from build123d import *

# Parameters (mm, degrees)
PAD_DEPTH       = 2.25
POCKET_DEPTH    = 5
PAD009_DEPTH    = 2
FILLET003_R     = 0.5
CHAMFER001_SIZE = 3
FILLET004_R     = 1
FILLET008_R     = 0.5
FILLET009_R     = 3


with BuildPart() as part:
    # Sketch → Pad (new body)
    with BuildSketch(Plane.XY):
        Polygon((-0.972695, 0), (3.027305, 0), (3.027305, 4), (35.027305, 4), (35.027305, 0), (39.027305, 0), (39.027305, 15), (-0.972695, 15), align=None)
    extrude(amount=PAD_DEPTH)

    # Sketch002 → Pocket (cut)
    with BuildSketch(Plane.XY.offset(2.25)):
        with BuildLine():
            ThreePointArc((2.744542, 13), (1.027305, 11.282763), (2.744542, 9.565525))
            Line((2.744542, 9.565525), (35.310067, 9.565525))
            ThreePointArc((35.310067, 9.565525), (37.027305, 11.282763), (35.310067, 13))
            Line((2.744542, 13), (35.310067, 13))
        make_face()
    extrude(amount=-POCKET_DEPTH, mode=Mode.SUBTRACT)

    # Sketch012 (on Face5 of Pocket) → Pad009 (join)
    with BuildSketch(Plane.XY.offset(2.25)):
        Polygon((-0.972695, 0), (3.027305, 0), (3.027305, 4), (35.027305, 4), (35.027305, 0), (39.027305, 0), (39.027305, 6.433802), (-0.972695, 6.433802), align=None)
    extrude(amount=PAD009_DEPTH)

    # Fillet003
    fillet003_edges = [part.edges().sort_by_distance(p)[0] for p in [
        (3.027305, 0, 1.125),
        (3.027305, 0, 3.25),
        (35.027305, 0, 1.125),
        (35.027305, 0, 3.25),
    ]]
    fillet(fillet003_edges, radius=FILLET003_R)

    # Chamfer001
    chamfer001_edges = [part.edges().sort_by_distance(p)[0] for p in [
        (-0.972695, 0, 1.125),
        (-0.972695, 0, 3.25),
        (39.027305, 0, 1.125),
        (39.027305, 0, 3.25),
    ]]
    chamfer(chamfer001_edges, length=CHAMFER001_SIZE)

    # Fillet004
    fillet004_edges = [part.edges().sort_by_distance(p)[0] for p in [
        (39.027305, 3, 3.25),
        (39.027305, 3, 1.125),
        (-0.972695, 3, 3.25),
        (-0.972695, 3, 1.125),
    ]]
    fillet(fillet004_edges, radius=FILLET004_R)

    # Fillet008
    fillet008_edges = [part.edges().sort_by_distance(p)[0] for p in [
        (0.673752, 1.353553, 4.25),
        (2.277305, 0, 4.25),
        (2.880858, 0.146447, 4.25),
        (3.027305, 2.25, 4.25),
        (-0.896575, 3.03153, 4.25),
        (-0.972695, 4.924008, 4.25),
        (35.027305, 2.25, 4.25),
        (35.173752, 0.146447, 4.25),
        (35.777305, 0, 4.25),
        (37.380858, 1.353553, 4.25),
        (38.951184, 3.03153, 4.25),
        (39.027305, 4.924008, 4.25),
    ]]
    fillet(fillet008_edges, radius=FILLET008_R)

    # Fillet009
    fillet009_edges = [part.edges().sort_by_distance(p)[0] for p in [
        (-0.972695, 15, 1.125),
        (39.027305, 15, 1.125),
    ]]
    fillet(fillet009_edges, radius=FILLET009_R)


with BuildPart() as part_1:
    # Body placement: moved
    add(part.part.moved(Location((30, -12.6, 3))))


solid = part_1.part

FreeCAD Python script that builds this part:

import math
import FreeCAD as App
import Part
import Sketcher
Q = App.Units.Quantity


def edges_at(feature, points):
    """Names of the edges that pass closest to the given points."""
    edges = feature.Shape.Edges
    near = lambda p: min(range(len(edges)), key=lambda i: edges[i].distToShape(Part.Vertex(*p))[0])
    return sorted({f"Edge{near(p) + 1}" for p in points})

doc = App.newDocument("Part")
params = doc.addObject("Spreadsheet::Sheet", "Params")
for row, (alias, value) in enumerate([
    ("sketch1_width", "4 mm"),
    ("sketch1_width2", "32 mm"),
    ("sketch1_height", "15 mm"),
    ("pad1_length", "2.25 mm"),
    ("pocket1_length", "5 mm"),
    ("sketch3_width", "4 mm"),
    ("sketch3_width2", "32 mm"),
    ("pad2_length", "2 mm"),
    ("fillet_radius", "0.5 mm"),
    ("chamfer_size", "3 mm"),
    ("fillet2_radius", "1 mm"),
    ("fillet3_radius", "0.5 mm"),
    ("fillet4_radius", "3 mm"),
], start=1):
    params.set(f"A{row}", alias)
    params.set(f"B{row}", "=" + value)
    params.setAlias(f"B{row}", alias)

body = doc.addObject("PartDesign::Body", "Body")

# Sketch on XY plane
sketch1 = body.newObject("Sketcher::SketchObject", "Sketch")
sketch1.AttachmentSupport = (doc.getObject("XY_Plane"), [""])
sketch1.MapMode = "FlatFace"
sketch1.addGeometry([
    Part.LineSegment(App.Vector(-1, 0, 0), App.Vector(3, 0, 0)),  # 0
    Part.LineSegment(App.Vector(3, 0, 0), App.Vector(3, 4, 0)),  # 1
    Part.LineSegment(App.Vector(3, 4, 0), App.Vector(35, 4, 0)),  # 2
    Part.LineSegment(App.Vector(35, 4, 0), App.Vector(35, 0, 0)),  # 3
    Part.LineSegment(App.Vector(35, 0, 0), App.Vector(39, 0, 0)),  # 4
    Part.LineSegment(App.Vector(39, 0, 0), App.Vector(39, 15, 0)),  # 5
    Part.LineSegment(App.Vector(39, 15, 0), App.Vector(-1, 15, 0)),  # 6
    Part.LineSegment(App.Vector(-1, 15, 0), App.Vector(-1, 0, 0)),  # 7
], False)
sketch1.addConstraint([
    Sketcher.Constraint("Coincident", 0, 2, 1, 1),
    Sketcher.Constraint("Coincident", 1, 2, 2, 1),
    Sketcher.Constraint("Coincident", 2, 2, 3, 1),
    Sketcher.Constraint("Coincident", 3, 2, 4, 1),
    Sketcher.Constraint("Coincident", 4, 2, 5, 1),
    Sketcher.Constraint("Coincident", 5, 2, 6, 1),
    Sketcher.Constraint("Coincident", 6, 2, 7, 1),
    Sketcher.Constraint("Coincident", 7, 2, 0, 1),
    Sketcher.Constraint("Horizontal", 0),
    Sketcher.Constraint("Vertical", 1),
    Sketcher.Constraint("Horizontal", 2),
    Sketcher.Constraint("Vertical", 3),
    Sketcher.Constraint("Horizontal", 4),
    Sketcher.Constraint("Vertical", 5),
    Sketcher.Constraint("Horizontal", 6),
    Sketcher.Constraint("Vertical", 7),
    Sketcher.Constraint("PointOnObject", 0, 2, -1),
    Sketcher.Constraint("PointOnObject", 3, 2, -1),
    Sketcher.Constraint("Equal", 0, 4),
    Sketcher.Constraint("Equal", 4, 1),
    Sketcher.Constraint("DistanceX", 0, 1, 0, 2, Q("4 mm")),
    Sketcher.Constraint("DistanceX", 2, 1, 2, 2, Q("32 mm")),
    Sketcher.Constraint("DistanceY", 5, 1, 5, 2, Q("15 mm")),
    Sketcher.Constraint("DistanceX", -1, 1, 0, 2, Q("3.027305 mm")),
])
sketch1.setExpression("Constraints[20]", "Params.sketch1_width")
sketch1.setExpression("Constraints[21]", "Params.sketch1_width2")
sketch1.setExpression("Constraints[22]", "Params.sketch1_height")
pad1 = body.newObject("PartDesign::Pad", "Pad")
pad1.Profile = sketch1
pad1.setExpression("Length", "Params.pad1_length")

# Sketch on XY plane
sketch2 = body.newObject("Sketcher::SketchObject", "Sketch001")
sketch2.AttachmentSupport = (doc.getObject("XY_Plane"), [""])
sketch2.MapMode = "FlatFace"
sketch2.AttachmentOffset = App.Placement(App.Vector(0, 0, 2.25), App.Rotation())
sketch2.addGeometry([
    Part.ArcOfCircle(Part.Circle(App.Vector(2.7, 11.3, 0), App.Vector(0, 0, 1), 1.7), math.radians(90), math.radians(270)),
    Part.LineSegment(App.Vector(2.7, 9.6, 0), App.Vector(35.3, 9.6, 0)),
    Part.ArcOfCircle(Part.Circle(App.Vector(35.3, 11.3, 0), App.Vector(0, 0, 1), 1.7), math.radians(-90), math.radians(90)),
    Part.LineSegment(App.Vector(35.3, 13, 0), App.Vector(2.7, 13, 0)),
], False)
sketch2.addConstraint([
    Sketcher.Constraint("Tangent", 0, 2, 1, 1),
    Sketcher.Constraint("Tangent", 1, 2, 2, 1),
    Sketcher.Constraint("Tangent", 2, 2, 3, 1),
    Sketcher.Constraint("Tangent", 3, 2, 0, 1),
    Sketcher.Constraint("Horizontal", 1),
    Sketcher.Constraint("Horizontal", 3),
    Sketcher.Constraint("DistanceY", -1, 1, 2, 2, Q("13 mm")),
    Sketcher.Constraint("Radius", 0, Q("1.717237 mm")),
    Sketcher.Constraint("DistanceX", 1, 1, 1, 2, Q("32.565525 mm")),
    Sketcher.Constraint("DistanceX", -1, 1, 0, 2, Q("2.744542 mm")),
])
pocket1 = body.newObject("PartDesign::Pocket", "Pocket")
pocket1.Profile = sketch2
pocket1.setExpression("Length", "Params.pocket1_length")

# Sketch on XY plane
sketch3 = body.newObject("Sketcher::SketchObject", "Sketch002")
sketch3.AttachmentSupport = (doc.getObject("XY_Plane"), [""])
sketch3.MapMode = "FlatFace"
sketch3.AttachmentOffset = App.Placement(App.Vector(0, 0, 2.25), App.Rotation())
sketch3.addGeometry([
    Part.LineSegment(App.Vector(-1, 0, 0), App.Vector(3, 0, 0)),  # 0
    Part.LineSegment(App.Vector(3, 0, 0), App.Vector(3, 4, 0)),  # 1
    Part.LineSegment(App.Vector(3, 4, 0), App.Vector(35, 4, 0)),  # 2
    Part.LineSegment(App.Vector(35, 4, 0), App.Vector(35, 0, 0)),  # 3
    Part.LineSegment(App.Vector(35, 0, 0), App.Vector(39, 0, 0)),  # 4
    Part.LineSegment(App.Vector(39, 0, 0), App.Vector(39, 6.4, 0)),  # 5
    Part.LineSegment(App.Vector(39, 6.4, 0), App.Vector(-1, 6.4, 0)),  # 6
    Part.LineSegment(App.Vector(-1, 6.4, 0), App.Vector(-1, 0, 0)),  # 7
], False)
sketch3.addConstraint([
    Sketcher.Constraint("Coincident", 0, 2, 1, 1),
    Sketcher.Constraint("Coincident", 1, 2, 2, 1),
    Sketcher.Constraint("Coincident", 2, 2, 3, 1),
    Sketcher.Constraint("Coincident", 3, 2, 4, 1),
    Sketcher.Constraint("Coincident", 4, 2, 5, 1),
    Sketcher.Constraint("Coincident", 5, 2, 6, 1),
    Sketcher.Constraint("Coincident", 6, 2, 7, 1),
    Sketcher.Constraint("Coincident", 7, 2, 0, 1),
    Sketcher.Constraint("Horizontal", 0),
    Sketcher.Constraint("Vertical", 1),
    Sketcher.Constraint("Horizontal", 2),
    Sketcher.Constraint("Vertical", 3),
    Sketcher.Constraint("Horizontal", 4),
    Sketcher.Constraint("Vertical", 5),
    Sketcher.Constraint("Horizontal", 6),
    Sketcher.Constraint("Vertical", 7),
    Sketcher.Constraint("PointOnObject", 0, 2, -1),
    Sketcher.Constraint("PointOnObject", 3, 2, -1),
    Sketcher.Constraint("Equal", 0, 4),
    Sketcher.Constraint("Equal", 4, 1),
    Sketcher.Constraint("DistanceX", 0, 1, 0, 2, Q("4 mm")),
    Sketcher.Constraint("DistanceX", 2, 1, 2, 2, Q("32 mm")),
    Sketcher.Constraint("DistanceY", 2, 2, 5, 2, Q("2.433802 mm")),
    Sketcher.Constraint("DistanceX", -1, 1, 0, 2, Q("3.027305 mm")),
])
sketch3.setExpression("Constraints[20]", "Params.sketch3_width")
sketch3.setExpression("Constraints[21]", "Params.sketch3_width2")
pad2 = body.newObject("PartDesign::Pad", "Pad001")
pad2.Profile = sketch3
pad2.setExpression("Length", "Params.pad2_length")
doc.recompute()

fillet = body.newObject("PartDesign::Fillet", "Fillet")
fillet.Base = (pad2, edges_at(pad2, [
    (3.027, 0, 2.125),
    (3.027, 0, 2.125),
    (35.027, 0, 2.125),
    (35.027, 0, 2.125),
]))
fillet.setExpression("Radius", "Params.fillet_radius")
doc.recompute()

chamfer = body.newObject("PartDesign::Chamfer", "Chamfer")
chamfer.Base = (fillet, edges_at(fillet, [
    (-0.973, 0, 2.125),
    (-0.973, 0, 2.125),
    (39.027, 0, 2.125),
    (39.027, 0, 2.125),
]))
chamfer.setExpression("Size", "Params.chamfer_size")
doc.recompute()

fillet2 = body.newObject("PartDesign::Fillet", "Fillet001")
fillet2.Base = (chamfer, edges_at(chamfer, [
    (39.027, 3, 2.125),
    (39.027, 3, 2.125),
    (-0.973, 3, 2.125),
    (-0.973, 3, 2.125),
]))
fillet2.setExpression("Radius", "Params.fillet2_radius")
doc.recompute()

fillet3 = body.newObject("PartDesign::Fillet", "Fillet002")
fillet3.Base = (fillet2, edges_at(fillet2, [
    (0.674, 1.354, 4.25),
    (2.277, 0, 4.25),
    (2.881, 0.146, 4.25),
    (3.027, 2.25, 4.25),
    (-0.897, 3.032, 4.25),
    (-0.973, 4.924, 4.25),
    (35.027, 2.25, 4.25),
    (35.174, 0.146, 4.25),
    (35.777, 0, 4.25),
    (37.381, 1.354, 4.25),
    (38.951, 3.032, 4.25),
    (39.027, 4.924, 4.25),
]))
fillet3.setExpression("Radius", "Params.fillet3_radius")
doc.recompute()

fillet4 = body.newObject("PartDesign::Fillet", "Fillet003")
fillet4.Base = (fillet3, edges_at(fillet3, [(-0.973, 15, 1.125), (39.027, 15, 1.125)]))
fillet4.setExpression("Radius", "Params.fillet4_radius")
body2 = doc.addObject("PartDesign::Body", "Body001")
doc.recompute()

body.Placement = App.Placement(App.Vector(30, -12.6, 3), App.Rotation(App.Vector(0, 0, 1), 0))
boolean = body2.newObject("PartDesign::Boolean", "Boolean")
boolean.Type = "Fuse"
boolean.addObjects([body])

doc.recompute()
